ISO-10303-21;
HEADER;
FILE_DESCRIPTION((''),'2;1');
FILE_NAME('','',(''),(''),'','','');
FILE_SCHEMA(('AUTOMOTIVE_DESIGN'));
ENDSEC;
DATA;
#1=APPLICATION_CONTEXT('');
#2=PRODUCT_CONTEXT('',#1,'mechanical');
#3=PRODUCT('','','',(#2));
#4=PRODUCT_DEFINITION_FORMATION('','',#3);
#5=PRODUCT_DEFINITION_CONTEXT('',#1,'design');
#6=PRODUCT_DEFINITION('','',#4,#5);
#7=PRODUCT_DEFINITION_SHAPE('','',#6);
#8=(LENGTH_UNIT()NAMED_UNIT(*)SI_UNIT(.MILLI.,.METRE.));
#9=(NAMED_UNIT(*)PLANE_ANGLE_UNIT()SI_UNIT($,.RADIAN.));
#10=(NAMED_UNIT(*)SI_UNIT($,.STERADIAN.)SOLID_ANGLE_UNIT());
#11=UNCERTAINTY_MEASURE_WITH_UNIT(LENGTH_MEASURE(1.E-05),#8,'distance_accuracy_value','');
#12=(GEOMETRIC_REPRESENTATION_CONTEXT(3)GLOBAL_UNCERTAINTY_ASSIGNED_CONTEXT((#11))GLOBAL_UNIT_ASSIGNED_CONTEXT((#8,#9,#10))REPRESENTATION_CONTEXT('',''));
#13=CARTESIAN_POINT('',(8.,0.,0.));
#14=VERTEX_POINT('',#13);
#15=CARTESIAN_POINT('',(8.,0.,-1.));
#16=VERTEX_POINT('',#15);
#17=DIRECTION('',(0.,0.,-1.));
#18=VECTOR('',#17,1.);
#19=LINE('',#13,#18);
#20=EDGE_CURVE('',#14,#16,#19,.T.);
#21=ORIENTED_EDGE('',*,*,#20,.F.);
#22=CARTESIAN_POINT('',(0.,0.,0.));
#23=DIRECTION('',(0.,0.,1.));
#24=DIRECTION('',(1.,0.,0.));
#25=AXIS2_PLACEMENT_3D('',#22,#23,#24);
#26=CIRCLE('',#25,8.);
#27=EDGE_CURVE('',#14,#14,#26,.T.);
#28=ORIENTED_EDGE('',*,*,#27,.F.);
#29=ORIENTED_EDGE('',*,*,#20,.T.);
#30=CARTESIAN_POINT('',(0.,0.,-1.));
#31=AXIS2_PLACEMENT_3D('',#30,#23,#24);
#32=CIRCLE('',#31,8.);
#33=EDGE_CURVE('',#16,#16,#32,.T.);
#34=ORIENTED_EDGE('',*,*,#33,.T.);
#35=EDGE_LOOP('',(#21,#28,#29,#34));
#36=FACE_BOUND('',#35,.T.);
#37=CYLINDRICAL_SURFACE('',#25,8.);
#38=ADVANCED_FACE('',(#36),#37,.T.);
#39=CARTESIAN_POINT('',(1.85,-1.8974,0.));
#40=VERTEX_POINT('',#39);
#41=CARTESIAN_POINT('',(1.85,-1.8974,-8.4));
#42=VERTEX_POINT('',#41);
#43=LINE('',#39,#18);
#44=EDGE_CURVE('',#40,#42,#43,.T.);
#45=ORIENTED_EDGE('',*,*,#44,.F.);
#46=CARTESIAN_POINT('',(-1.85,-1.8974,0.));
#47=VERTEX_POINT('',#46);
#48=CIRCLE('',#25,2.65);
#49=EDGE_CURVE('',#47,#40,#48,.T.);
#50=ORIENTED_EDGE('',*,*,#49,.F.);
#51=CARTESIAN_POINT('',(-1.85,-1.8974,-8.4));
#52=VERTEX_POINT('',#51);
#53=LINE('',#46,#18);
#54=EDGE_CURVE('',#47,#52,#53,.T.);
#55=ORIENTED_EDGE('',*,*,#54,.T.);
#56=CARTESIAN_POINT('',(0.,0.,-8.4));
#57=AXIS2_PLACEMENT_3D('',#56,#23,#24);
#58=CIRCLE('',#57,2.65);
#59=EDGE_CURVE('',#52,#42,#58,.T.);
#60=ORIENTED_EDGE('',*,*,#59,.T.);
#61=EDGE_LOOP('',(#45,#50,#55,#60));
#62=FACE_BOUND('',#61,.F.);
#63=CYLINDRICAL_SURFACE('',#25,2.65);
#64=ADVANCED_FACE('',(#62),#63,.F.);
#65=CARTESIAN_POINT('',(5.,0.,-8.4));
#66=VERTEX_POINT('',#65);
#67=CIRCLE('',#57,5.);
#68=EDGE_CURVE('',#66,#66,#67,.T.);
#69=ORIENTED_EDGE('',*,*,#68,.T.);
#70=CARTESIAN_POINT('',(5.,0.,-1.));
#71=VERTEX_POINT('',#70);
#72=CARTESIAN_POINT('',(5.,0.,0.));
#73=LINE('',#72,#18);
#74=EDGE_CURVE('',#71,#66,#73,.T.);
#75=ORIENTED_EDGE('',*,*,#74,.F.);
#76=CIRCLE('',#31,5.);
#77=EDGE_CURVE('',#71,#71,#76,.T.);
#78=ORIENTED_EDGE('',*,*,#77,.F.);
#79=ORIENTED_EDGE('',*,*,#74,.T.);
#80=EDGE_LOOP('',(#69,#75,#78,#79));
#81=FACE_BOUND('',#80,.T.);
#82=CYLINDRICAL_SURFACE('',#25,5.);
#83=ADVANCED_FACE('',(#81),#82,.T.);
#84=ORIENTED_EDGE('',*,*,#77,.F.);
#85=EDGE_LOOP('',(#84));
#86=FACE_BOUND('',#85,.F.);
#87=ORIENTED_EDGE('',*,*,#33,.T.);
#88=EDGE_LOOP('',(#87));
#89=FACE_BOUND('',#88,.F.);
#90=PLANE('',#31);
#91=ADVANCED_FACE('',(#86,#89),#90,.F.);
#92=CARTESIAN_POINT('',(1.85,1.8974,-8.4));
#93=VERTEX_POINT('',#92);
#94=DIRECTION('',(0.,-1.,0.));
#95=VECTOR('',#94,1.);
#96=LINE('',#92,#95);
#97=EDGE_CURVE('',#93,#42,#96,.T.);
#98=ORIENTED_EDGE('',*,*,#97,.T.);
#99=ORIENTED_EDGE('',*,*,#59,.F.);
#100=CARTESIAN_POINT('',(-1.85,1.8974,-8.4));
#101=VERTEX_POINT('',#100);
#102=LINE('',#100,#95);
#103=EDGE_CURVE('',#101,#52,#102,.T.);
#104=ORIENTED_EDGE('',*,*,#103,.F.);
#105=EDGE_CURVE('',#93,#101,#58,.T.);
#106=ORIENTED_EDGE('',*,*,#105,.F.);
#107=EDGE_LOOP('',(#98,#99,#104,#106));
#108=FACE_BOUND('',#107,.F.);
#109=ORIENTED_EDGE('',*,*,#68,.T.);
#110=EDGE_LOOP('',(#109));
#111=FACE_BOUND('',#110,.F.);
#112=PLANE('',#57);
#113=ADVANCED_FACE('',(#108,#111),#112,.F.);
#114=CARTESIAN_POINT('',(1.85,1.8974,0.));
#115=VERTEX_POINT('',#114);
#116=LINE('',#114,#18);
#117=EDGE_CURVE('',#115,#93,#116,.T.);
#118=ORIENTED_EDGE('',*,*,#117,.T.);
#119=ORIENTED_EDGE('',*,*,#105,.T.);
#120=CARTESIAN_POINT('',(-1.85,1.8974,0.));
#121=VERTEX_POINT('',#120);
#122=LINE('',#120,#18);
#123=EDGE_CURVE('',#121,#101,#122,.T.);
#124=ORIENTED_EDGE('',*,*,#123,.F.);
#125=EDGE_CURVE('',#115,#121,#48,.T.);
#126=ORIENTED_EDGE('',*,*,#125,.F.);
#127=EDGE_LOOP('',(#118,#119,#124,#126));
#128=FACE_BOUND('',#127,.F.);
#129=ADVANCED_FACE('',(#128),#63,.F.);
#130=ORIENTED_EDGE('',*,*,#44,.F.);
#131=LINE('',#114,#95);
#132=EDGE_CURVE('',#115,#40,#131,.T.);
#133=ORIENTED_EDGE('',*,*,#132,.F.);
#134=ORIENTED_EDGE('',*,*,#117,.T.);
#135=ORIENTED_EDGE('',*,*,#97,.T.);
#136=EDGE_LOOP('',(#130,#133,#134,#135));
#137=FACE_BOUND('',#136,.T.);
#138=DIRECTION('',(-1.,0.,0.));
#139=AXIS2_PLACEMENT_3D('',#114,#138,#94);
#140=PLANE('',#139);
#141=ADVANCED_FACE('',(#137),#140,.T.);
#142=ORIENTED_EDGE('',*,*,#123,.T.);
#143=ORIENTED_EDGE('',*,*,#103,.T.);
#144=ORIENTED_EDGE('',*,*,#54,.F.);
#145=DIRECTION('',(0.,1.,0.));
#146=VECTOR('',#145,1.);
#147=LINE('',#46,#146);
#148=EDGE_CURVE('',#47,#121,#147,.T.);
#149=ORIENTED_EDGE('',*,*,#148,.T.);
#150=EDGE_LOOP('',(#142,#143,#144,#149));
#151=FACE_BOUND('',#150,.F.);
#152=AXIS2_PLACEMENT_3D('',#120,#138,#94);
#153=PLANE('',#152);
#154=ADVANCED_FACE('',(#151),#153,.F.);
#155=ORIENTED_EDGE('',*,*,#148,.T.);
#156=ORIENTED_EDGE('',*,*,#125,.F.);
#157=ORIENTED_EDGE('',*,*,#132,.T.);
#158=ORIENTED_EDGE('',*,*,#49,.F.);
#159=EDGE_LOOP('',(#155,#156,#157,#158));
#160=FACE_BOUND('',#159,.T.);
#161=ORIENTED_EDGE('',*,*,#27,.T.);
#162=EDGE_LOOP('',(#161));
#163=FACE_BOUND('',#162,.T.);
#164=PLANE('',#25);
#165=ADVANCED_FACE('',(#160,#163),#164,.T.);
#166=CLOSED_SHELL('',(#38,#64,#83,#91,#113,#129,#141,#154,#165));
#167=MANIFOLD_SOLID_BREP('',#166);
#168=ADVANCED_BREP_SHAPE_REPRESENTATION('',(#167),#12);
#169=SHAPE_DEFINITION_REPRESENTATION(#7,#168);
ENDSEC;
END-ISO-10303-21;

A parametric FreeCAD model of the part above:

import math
import FreeCAD as App
import Part
import Sketcher
from FreeCAD import Vector
Q = App.Units.Quantity

doc = App.newDocument("Part")
body = doc.addObject("PartDesign::Body", "Body")

sketch1 = body.newObject("Sketcher::SketchObject", "Sketch")
sketch1.AttachmentSupport = (doc.getObject("XY_Plane"), [""])
sketch1.MapMode = "FlatFace"
sketch1.addGeometry([
    Part.Circle(Vector(0, 0, 0), Vector(0, 0, 1), 5),
    Part.LineSegment(Vector(1.9, 1.9, 0), Vector(1.9, -1.9, 0)),
    Part.ArcOfCircle(Part.Circle(Vector(0, 0, 0), Vector(0, 0, 1), 2.6), math.radians(-134), math.radians(-46)),
    Part.LineSegment(Vector(-1.9, -1.9, 0), Vector(-1.9, 1.9, 0)),
    Part.ArcOfCircle(Part.Circle(Vector(0, 0, 0), Vector(0, 0, 1), 2.6), math.radians(46), math.radians(134)),
], False)
sketch1.addConstraint([
    Sketcher.Constraint("Coincident", 1, 2, 2, 2),
    Sketcher.Constraint("Coincident", 2, 1, 3, 1),
    Sketcher.Constraint("Coincident", 3, 2, 4, 2),
    Sketcher.Constraint("Coincident", 4, 1, 1, 1),
    Sketcher.Constraint("Vertical", 1),
    Sketcher.Constraint("Vertical", 3),
    Sketcher.Constraint("Coincident", 0, 3, -1, 1),
    Sketcher.Constraint("Coincident", 2, 3, -1, 1),
    Sketcher.Constraint("Coincident", 4, 3, -1, 1),
    Sketcher.Constraint("Equal", 2, 4),
    Sketcher.Constraint("Horizontal", 1, 2, 2, 1),
    Sketcher.Constraint("Diameter", 0, Q("10 mm")),
    Sketcher.Constraint("Radius", 2, Q("2.65 mm")),
    Sketcher.Constraint("DistanceX", -1, 1, 1, 2, Q("1.85 mm")),
])
pad1 = body.newObject("PartDesign::Pad", "Pad")
pad1.Profile = sketch1
pad1.Length = 8.4
pad1.Reversed = True

sketch2 = body.newObject("Sketcher::SketchObject", "Sketch001")
sketch2.AttachmentSupport = (doc.getObject("XY_Plane"), [""])
sketch2.MapMode = "FlatFace"
sketch2.addGeometry([
    Part.Circle(Vector(0, 0, 0), Vector(0, 0, 1), 8),
    Part.Circle(Vector(0, 0, 0), Vector(0, 0, 1), 5),
], False)
sketch2.addConstraint([
    Sketcher.Constraint("Coincident", 0, 3, -1, 1),
    Sketcher.Constraint("Coincident", 1, 3, -1, 1),
    Sketcher.Constraint("Diameter", 0, Q("16 mm")),
    Sketcher.Constraint("Diameter", 1, Q("10 mm")),
])
pad2 = body.newObject("PartDesign::Pad", "Pad001")
pad2.Profile = sketch2
pad2.Length = 1
pad2.Reversed = True

doc.recompute()
